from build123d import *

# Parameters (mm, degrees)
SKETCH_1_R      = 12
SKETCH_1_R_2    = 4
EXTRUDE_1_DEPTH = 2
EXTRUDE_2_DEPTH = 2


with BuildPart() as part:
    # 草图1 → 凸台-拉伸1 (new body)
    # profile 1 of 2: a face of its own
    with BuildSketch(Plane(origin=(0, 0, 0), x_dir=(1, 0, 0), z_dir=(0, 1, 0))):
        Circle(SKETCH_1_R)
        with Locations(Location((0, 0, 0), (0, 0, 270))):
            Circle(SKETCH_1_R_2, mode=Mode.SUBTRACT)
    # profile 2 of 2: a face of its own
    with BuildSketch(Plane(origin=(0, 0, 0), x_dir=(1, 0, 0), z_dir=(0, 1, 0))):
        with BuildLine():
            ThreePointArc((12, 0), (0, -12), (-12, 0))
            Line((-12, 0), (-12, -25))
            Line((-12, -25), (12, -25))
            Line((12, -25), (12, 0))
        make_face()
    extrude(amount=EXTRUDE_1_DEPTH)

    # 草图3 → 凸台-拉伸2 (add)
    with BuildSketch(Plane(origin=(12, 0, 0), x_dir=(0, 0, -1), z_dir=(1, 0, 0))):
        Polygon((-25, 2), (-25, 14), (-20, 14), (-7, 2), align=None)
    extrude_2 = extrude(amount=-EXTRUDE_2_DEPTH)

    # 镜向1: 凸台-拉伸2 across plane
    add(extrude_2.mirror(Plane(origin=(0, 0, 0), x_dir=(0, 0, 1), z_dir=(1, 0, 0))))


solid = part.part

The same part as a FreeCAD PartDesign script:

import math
import FreeCAD as App
import Part
import Sketcher
from FreeCAD import Vector

doc = App.newDocument("Part")
body = doc.addObject("PartDesign::Body", "Body")

sketch1 = body.newObject("Sketcher::SketchObject", "Sketch")
sketch1.AttachmentSupport = (doc.getObject("XZ_Plane"), [""])
sketch1.MapMode = "FlatFace"
sketch1.addGeometry([
    Part.ArcOfCircle(Part.Circle(Vector(0, 0, 0), Vector(0, 0, 1), 12), math.radians(180), math.radians(360)),
    Part.LineSegment(Vector(-12, 0, 0), Vector(-12, 25, 0)),
    Part.LineSegment(Vector(-12, 25, 0), Vector(12, 25, 0)),
    Part.LineSegment(Vector(12, 25, 0), Vector(12, 0, 0)),
    Part.Circle(Vector(0, 0, 0), Vector(0, 0, 1), 4),
], False)
sketch1.addConstraint([
    Sketcher.Constraint("Tangent", 0, 1, 1, 1),
    Sketcher.Constraint("Coincident", 1, 2, 2, 1),
    Sketcher.Constraint("Coincident", 2, 2, 3, 1),
    Sketcher.Constraint("Tangent", 3, 2, 0, 2),
    Sketcher.Constraint("Vertical", 1),
    Sketcher.Constraint("Horizontal", 2),
    Sketcher.Constraint("Vertical", 3),
    Sketcher.Constraint("Coincident", 0, 3, -1, 1),
    Sketcher.Constraint("Coincident", 4, 3, -1, 1),
    Sketcher.Constraint("Diameter", 4, 8.0),
    Sketcher.Constraint("Radius", 0, 12.0),
    Sketcher.Constraint("DistanceY", 1, 1, 1, 2, 25.0),
])
pad1 = body.newObject("PartDesign::Pad", "Pad")
pad1.Profile = sketch1
pad1.Length = 2
pad1.Reversed = True

sketch2 = body.newObject("Sketcher::SketchObject", "Sketch001")
sketch2.AttachmentSupport = (doc.getObject("YZ_Plane"), [""])
sketch2.MapMode = "FlatFace"
sketch2.AttachmentOffset = App.Placement(Vector(0, 0, 12), App.Rotation())
sketch2.addGeometry([
    Part.LineSegment(Vector(14, 25, 0), Vector(2, 25, 0)),
    Part.LineSegment(Vector(2, 25, 0), Vector(2, 7, 0)),
    Part.LineSegment(Vector(2, 7, 0), Vector(14, 20, 0)),
    Part.LineSegment(Vector(14, 20, 0), Vector(14, 25, 0)),
], False)
sketch2.addConstraint([
    Sketcher.Constraint("Coincident", 0, 2, 1, 1),
    Sketcher.Constraint("Coincident", 1, 2, 2, 1),
    Sketcher.Constraint("Coincident", 2, 2, 3, 1),
    Sketcher.Constraint("Coincident", 3, 2, 0, 1),
    Sketcher.Constraint("Horizontal", 0),
    Sketcher.Constraint("Vertical", 1),
    Sketcher.Constraint("Vertical", 3),
    Sketcher.Constraint("DistanceX", 0, 2, 0, 1, 12.0),
    Sketcher.Constraint("DistanceY", 1, 2, 1, 1, 18.0),
    Sketcher.Constraint("DistanceY", 3, 1, 3, 2, 5.0),
    Sketcher.Constraint("DistanceX", -1, 1, 0, 2, 2.0),
    Sketcher.Constraint("DistanceY", -1, 1, 0, 2, 25.0),
])
pad2 = body.newObject("PartDesign::Pad", "Pad001")
pad2.Profile = sketch2
pad2.Length = 2
pad2.Reversed = True
doc.recompute()

mirrored = body.newObject("PartDesign::Mirrored", "Mirrored")
mirrored.Originals = [pad2]
mirrored.MirrorPlane = (doc.getObject("YZ_Plane"), [""])
body.Tip = mirrored

doc.recompute()
